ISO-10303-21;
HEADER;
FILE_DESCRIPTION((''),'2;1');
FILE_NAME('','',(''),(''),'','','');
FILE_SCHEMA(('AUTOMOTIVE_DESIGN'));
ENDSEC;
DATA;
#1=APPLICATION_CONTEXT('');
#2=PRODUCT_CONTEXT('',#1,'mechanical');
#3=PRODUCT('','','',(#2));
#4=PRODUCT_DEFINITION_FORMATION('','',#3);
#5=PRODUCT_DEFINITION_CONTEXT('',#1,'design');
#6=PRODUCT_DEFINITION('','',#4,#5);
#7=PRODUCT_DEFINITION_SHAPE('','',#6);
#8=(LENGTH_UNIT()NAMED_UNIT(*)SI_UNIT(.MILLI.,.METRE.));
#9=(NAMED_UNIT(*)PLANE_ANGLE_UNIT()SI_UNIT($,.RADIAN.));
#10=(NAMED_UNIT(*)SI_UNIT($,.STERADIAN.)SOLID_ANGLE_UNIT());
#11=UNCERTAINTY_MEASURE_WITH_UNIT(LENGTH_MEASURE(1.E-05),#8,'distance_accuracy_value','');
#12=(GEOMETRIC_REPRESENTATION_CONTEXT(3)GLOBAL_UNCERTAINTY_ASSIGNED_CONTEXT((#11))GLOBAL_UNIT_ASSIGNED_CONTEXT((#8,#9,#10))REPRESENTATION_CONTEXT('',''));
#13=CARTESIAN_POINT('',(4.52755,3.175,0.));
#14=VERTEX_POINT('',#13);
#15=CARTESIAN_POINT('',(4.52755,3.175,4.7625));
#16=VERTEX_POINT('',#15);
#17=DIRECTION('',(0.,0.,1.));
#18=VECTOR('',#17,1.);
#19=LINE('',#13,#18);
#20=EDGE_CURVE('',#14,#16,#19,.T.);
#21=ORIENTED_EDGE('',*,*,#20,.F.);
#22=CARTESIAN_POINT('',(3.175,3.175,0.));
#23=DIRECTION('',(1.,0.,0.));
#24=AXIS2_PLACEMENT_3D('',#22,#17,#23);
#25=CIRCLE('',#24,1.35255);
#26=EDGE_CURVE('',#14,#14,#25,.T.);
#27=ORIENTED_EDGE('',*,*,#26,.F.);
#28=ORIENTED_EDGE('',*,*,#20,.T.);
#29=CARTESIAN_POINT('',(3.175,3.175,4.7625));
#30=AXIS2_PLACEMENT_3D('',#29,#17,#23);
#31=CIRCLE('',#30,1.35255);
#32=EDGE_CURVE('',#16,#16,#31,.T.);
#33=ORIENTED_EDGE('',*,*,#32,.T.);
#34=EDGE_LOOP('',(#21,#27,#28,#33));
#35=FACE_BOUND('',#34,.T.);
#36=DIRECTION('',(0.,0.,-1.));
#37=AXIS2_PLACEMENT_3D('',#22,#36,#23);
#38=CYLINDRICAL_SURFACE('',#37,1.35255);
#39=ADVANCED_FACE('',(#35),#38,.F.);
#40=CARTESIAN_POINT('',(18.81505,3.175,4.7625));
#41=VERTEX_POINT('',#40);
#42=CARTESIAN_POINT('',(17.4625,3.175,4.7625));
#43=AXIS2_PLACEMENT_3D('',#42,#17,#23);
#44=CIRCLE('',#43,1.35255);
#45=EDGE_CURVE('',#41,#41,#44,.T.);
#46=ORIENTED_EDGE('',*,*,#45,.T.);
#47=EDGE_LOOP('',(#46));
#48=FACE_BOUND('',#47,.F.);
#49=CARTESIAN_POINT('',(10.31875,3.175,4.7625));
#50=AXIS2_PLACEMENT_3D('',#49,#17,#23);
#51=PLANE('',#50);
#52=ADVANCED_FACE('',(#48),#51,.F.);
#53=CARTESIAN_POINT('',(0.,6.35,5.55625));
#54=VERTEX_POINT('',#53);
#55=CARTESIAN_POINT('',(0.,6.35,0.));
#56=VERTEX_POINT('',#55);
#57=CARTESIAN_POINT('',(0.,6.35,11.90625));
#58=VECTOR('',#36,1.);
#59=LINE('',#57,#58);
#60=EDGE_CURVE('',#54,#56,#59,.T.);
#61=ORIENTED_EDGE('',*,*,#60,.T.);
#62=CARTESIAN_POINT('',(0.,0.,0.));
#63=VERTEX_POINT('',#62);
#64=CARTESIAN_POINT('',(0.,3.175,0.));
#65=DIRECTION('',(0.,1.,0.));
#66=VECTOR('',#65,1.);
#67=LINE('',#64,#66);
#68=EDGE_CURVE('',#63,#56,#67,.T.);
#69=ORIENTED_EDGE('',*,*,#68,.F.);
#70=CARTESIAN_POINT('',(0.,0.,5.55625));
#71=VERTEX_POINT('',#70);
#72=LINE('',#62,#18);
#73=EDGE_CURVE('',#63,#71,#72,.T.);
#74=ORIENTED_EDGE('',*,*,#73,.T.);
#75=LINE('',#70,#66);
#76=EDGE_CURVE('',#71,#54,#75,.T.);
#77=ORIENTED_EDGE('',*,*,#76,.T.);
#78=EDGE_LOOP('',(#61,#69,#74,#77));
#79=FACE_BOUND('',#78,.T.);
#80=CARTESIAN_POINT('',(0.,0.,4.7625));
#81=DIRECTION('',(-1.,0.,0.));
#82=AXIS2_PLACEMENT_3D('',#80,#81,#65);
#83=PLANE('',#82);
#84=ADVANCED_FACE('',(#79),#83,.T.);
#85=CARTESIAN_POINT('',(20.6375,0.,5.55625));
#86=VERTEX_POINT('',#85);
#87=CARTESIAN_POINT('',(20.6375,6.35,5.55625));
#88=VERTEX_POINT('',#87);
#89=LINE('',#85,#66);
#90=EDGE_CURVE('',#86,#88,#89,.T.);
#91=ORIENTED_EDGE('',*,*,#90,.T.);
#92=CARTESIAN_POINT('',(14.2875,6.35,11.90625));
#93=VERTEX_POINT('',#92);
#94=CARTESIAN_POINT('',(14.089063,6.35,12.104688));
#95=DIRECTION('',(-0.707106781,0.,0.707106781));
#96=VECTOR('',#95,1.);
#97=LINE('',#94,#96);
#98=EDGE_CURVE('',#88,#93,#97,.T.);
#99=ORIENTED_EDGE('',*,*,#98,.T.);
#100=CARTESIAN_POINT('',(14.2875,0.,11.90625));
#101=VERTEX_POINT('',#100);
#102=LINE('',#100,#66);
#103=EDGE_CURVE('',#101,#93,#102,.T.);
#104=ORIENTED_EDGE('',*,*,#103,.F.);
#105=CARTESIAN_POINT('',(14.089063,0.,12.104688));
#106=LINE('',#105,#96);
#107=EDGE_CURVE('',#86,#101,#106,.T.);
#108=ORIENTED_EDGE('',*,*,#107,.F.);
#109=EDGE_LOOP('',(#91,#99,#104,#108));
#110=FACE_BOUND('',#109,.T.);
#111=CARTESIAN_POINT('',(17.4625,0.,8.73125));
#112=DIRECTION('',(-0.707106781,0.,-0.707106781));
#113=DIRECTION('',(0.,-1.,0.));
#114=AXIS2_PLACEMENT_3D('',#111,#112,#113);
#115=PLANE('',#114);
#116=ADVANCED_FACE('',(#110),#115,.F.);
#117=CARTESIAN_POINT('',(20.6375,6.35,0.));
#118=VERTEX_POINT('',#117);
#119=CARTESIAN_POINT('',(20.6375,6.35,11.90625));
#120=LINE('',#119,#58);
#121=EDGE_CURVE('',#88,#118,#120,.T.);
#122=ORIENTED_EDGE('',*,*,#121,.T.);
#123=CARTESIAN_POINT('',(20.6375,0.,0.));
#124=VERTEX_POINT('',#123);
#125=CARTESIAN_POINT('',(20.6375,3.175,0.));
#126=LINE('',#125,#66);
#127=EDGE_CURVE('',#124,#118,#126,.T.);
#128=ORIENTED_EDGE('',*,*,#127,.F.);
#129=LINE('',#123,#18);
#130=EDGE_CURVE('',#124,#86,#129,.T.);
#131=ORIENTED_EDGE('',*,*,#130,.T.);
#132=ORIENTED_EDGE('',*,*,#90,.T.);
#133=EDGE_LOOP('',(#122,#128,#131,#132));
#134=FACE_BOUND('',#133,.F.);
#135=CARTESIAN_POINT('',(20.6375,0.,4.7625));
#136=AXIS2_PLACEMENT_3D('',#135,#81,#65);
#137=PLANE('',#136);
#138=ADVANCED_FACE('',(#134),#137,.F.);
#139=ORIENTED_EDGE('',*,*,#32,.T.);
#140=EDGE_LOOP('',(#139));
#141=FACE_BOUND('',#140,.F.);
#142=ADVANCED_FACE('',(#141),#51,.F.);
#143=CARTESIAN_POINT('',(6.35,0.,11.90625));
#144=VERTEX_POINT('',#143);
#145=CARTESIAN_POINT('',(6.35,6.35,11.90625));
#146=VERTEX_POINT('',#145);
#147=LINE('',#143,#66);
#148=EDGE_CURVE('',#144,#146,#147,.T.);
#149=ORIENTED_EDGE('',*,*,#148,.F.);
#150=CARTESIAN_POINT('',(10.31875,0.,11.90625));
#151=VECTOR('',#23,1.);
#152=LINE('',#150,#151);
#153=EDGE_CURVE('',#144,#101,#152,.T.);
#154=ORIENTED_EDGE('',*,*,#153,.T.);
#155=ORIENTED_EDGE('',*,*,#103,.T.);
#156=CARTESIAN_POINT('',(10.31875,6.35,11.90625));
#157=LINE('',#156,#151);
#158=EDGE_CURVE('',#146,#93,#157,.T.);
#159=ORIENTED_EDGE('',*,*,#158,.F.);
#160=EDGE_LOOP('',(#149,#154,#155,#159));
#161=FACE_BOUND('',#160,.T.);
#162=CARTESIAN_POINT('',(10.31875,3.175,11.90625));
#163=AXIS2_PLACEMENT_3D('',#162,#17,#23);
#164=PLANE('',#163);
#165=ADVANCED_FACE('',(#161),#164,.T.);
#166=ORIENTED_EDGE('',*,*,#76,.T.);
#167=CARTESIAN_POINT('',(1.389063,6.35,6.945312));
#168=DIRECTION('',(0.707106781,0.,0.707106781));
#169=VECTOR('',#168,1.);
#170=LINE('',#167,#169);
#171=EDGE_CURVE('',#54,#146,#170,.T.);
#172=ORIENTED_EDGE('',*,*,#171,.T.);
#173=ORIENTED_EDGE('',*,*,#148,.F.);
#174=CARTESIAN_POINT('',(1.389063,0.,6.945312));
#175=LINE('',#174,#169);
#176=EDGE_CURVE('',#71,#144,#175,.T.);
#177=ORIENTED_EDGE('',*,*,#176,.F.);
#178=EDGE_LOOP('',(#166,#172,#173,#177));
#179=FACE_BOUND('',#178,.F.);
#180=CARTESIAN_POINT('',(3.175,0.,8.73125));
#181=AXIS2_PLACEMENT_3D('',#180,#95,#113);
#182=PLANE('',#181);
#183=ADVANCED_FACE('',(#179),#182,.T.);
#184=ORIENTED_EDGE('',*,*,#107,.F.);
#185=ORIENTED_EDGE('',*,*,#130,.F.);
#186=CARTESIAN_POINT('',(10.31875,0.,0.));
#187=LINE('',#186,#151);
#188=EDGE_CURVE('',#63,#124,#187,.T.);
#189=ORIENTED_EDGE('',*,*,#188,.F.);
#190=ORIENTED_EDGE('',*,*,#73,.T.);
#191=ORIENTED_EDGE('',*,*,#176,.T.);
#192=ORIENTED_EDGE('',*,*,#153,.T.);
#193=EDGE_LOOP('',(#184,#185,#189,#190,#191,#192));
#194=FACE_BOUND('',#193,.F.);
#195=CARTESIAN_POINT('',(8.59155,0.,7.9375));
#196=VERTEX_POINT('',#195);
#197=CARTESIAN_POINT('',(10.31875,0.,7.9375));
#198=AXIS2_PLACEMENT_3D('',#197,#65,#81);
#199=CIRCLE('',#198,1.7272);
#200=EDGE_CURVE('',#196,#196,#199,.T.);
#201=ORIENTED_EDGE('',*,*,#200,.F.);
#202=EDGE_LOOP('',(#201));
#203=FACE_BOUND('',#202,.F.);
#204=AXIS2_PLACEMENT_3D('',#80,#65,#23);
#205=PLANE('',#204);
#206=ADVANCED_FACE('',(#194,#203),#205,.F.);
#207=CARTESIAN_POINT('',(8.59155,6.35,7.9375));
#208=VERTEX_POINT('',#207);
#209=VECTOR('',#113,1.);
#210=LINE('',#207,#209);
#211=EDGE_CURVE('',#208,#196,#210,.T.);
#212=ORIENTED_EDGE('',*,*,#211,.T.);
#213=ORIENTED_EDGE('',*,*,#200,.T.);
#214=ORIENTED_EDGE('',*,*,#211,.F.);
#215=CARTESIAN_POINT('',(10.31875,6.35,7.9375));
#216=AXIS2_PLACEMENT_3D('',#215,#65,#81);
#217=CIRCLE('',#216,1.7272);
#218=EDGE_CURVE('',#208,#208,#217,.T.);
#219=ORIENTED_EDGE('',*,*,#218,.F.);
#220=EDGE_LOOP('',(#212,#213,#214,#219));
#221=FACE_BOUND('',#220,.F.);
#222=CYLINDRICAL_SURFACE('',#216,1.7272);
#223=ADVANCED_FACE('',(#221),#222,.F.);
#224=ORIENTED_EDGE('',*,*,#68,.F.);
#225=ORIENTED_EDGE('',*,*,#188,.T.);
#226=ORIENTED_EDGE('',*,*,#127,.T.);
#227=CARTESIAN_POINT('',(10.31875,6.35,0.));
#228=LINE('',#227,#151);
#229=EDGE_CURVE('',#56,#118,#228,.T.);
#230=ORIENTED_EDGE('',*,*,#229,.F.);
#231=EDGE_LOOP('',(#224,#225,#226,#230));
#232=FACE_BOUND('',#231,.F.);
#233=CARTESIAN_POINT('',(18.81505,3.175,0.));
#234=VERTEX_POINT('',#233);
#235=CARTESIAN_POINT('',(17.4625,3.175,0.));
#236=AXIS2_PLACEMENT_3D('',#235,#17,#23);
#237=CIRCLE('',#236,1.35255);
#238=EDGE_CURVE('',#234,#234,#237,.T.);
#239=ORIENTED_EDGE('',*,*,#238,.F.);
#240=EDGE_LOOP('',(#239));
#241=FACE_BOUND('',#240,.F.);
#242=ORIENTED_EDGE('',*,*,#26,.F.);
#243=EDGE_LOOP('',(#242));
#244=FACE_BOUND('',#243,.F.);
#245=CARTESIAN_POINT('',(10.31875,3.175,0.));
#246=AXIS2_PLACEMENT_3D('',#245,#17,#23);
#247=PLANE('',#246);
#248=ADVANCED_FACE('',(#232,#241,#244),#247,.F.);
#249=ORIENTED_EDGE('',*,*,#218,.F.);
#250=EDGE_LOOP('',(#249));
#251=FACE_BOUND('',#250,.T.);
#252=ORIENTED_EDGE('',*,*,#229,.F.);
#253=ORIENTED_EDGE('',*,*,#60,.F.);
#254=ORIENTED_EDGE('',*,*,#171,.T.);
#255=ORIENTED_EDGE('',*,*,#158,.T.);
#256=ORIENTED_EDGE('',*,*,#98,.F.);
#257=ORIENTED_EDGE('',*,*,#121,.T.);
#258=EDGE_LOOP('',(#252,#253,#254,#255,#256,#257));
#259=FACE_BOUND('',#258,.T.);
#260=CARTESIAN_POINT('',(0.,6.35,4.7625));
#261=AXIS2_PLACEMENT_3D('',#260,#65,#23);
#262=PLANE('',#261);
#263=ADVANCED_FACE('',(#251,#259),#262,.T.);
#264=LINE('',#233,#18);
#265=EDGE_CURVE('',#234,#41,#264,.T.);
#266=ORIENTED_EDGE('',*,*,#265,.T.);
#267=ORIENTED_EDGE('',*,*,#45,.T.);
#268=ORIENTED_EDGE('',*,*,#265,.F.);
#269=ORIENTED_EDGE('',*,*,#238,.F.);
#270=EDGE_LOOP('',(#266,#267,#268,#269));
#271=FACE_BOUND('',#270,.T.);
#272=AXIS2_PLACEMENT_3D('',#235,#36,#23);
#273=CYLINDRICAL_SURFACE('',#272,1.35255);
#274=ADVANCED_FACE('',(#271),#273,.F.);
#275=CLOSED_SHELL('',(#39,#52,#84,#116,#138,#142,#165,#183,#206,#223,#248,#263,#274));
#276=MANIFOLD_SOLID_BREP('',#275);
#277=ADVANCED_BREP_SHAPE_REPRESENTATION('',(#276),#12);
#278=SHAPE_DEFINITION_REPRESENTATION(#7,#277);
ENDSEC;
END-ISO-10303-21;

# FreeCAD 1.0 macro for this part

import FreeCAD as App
import Part
import Sketcher
Q = App.Units.Quantity


def edges_at(feature, points):
    """Names of the edges that pass closest to the given points."""
    edges = feature.Shape.Edges
    near = lambda p: min(range(len(edges)), key=lambda i: edges[i].distToShape(Part.Vertex(*p))[0])
    return sorted({f"Edge{near(p) + 1}" for p in points})


def add_polygon(sketch, points):
    """Adds a closed chain of lines whose ends are joined by coincident constraints."""
    first, n = sketch.GeometryCount, len(points)
    for a, b in zip(points, points[1:] + points[:1]):
        sketch.addGeometry(Part.LineSegment(App.Vector(*a, 0), App.Vector(*b, 0)), False)
    for i in range(n):
        sketch.addConstraint(Sketcher.Constraint("Coincident", first + i, 2, first + (i + 1) % n, 1))

doc = App.newDocument("Part")
body = doc.addObject("PartDesign::Body", "Body")

# Sketch on XY plane
sketch1 = doc.addObject("Sketcher::SketchObject", "Sketch")
body.addObject(sketch1)
sketch1.AttachmentSupport = (doc.XY_Plane, [""])
sketch1.MapMode = "FlatFace"
add_polygon(sketch1, [(0, 6.3), (0, 0), (20.6, 0), (20.6, 6.3)])  # lines 0-3
sketch1.addGeometry(Part.Circle(App.Vector(3.2, 3.2, 0), App.Vector(0, 0, 1), 1.4), False)  # 4
sketch1.addGeometry(Part.Circle(App.Vector(17.5, 3.2, 0), App.Vector(0, 0, 1), 1.4), False)  # 5
sketch1.addConstraint([
    Sketcher.Constraint("Vertical", 0),
    Sketcher.Constraint("Horizontal", 1),
    Sketcher.Constraint("Vertical", 2),
    Sketcher.Constraint("Horizontal", 3),
    Sketcher.Constraint("Coincident", 0, 2, -1, 1),
    Sketcher.Constraint("Equal", 4, 5),
    Sketcher.Constraint("Horizontal", 4, 3, 5, 3),
    Sketcher.Constraint("Diameter", 4, Q("0.1065 in")),
    Sketcher.Constraint("DistanceY", 0, 2, 0, 1, Q("0.25 in")),
    Sketcher.Constraint("DistanceX", 1, 1, 1, 2, Q("0.8125 in")),
    Sketcher.Constraint("DistanceX", -1, 1, 4, 3, Q("0.125 in")),
    Sketcher.Constraint("DistanceY", -1, 1, 4, 3, Q("0.125 in")),
    Sketcher.Constraint("DistanceX", -1, 1, 5, 3, Q("0.6875 in")),
])
pad1 = doc.addObject("PartDesign::Pad", "Pad")
body.addObject(pad1)
pad1.Profile = sketch1
pad1.Length = Q("0.1875 in")

# Sketch on XY plane
sketch2 = doc.addObject("Sketcher::SketchObject", "Sketch001")
body.addObject(sketch2)
sketch2.AttachmentSupport = (doc.XY_Plane, [""])
sketch2.MapMode = "FlatFace"
sketch2.AttachmentOffset = App.Placement(App.Vector(0, 0, 0.1875 * 25.4), App.Rotation())
add_polygon(sketch2, [(0, 6), (0, 0), (21, 0), (21, 6)])  # lines 0-3
sketch2.addConstraint([
    Sketcher.Constraint("Vertical", 0),
    Sketcher.Constraint("Horizontal", 1),
    Sketcher.Constraint("Vertical", 2),
    Sketcher.Constraint("Horizontal", 3),
    Sketcher.Constraint("Coincident", 0, 2, -1, 1),
    Sketcher.Constraint("DistanceY", 0, 2, 0, 1, Q("0.25 in")),
    Sketcher.Constraint("DistanceX", 1, 1, 1, 2, Q("0.8125 in")),
])
pad2 = doc.addObject("PartDesign::Pad", "Pad001")
body.addObject(pad2)
pad2.Profile = sketch2
pad2.Length = Q("0.28125 in")
doc.recompute()

chamfer = doc.addObject("PartDesign::Chamfer", "Chamfer")
body.addObject(chamfer)
chamfer.Base = (pad2, edges_at(pad2, [(20.637, 3.175, 11.906), (0, 3.175, 11.906)]))
chamfer.Size = Q("0.25 in")

# Sketch on XZ plane
sketch3 = doc.addObject("Sketcher::SketchObject", "Sketch002")
body.addObject(sketch3)
sketch3.AttachmentSupport = (doc.XZ_Plane, [""])
sketch3.MapMode = "FlatFace"
sketch3.AttachmentOffset = App.Placement(App.Vector(0, 0, -0.25 * 25.4), App.Rotation())
sketch3.addGeometry(Part.Circle(App.Vector(10.3, 7.9, 0), App.Vector(0, 0, 1), 1.7), False)
sketch3.addConstraint([
    Sketcher.Constraint("Diameter", 0, Q("0.136 in")),
    Sketcher.Constraint("DistanceX", -1, 1, 0, 3, Q("0.40625 in")),
    Sketcher.Constraint("DistanceY", -1, 1, 0, 3, Q("0.3125 in")),
])
pocket1 = doc.addObject("PartDesign::Pocket", "Pocket")
body.addObject(pocket1)
pocket1.Profile = sketch3
pocket1.Type = "ThroughAll"
pocket1.Reversed = True

doc.recompute()
